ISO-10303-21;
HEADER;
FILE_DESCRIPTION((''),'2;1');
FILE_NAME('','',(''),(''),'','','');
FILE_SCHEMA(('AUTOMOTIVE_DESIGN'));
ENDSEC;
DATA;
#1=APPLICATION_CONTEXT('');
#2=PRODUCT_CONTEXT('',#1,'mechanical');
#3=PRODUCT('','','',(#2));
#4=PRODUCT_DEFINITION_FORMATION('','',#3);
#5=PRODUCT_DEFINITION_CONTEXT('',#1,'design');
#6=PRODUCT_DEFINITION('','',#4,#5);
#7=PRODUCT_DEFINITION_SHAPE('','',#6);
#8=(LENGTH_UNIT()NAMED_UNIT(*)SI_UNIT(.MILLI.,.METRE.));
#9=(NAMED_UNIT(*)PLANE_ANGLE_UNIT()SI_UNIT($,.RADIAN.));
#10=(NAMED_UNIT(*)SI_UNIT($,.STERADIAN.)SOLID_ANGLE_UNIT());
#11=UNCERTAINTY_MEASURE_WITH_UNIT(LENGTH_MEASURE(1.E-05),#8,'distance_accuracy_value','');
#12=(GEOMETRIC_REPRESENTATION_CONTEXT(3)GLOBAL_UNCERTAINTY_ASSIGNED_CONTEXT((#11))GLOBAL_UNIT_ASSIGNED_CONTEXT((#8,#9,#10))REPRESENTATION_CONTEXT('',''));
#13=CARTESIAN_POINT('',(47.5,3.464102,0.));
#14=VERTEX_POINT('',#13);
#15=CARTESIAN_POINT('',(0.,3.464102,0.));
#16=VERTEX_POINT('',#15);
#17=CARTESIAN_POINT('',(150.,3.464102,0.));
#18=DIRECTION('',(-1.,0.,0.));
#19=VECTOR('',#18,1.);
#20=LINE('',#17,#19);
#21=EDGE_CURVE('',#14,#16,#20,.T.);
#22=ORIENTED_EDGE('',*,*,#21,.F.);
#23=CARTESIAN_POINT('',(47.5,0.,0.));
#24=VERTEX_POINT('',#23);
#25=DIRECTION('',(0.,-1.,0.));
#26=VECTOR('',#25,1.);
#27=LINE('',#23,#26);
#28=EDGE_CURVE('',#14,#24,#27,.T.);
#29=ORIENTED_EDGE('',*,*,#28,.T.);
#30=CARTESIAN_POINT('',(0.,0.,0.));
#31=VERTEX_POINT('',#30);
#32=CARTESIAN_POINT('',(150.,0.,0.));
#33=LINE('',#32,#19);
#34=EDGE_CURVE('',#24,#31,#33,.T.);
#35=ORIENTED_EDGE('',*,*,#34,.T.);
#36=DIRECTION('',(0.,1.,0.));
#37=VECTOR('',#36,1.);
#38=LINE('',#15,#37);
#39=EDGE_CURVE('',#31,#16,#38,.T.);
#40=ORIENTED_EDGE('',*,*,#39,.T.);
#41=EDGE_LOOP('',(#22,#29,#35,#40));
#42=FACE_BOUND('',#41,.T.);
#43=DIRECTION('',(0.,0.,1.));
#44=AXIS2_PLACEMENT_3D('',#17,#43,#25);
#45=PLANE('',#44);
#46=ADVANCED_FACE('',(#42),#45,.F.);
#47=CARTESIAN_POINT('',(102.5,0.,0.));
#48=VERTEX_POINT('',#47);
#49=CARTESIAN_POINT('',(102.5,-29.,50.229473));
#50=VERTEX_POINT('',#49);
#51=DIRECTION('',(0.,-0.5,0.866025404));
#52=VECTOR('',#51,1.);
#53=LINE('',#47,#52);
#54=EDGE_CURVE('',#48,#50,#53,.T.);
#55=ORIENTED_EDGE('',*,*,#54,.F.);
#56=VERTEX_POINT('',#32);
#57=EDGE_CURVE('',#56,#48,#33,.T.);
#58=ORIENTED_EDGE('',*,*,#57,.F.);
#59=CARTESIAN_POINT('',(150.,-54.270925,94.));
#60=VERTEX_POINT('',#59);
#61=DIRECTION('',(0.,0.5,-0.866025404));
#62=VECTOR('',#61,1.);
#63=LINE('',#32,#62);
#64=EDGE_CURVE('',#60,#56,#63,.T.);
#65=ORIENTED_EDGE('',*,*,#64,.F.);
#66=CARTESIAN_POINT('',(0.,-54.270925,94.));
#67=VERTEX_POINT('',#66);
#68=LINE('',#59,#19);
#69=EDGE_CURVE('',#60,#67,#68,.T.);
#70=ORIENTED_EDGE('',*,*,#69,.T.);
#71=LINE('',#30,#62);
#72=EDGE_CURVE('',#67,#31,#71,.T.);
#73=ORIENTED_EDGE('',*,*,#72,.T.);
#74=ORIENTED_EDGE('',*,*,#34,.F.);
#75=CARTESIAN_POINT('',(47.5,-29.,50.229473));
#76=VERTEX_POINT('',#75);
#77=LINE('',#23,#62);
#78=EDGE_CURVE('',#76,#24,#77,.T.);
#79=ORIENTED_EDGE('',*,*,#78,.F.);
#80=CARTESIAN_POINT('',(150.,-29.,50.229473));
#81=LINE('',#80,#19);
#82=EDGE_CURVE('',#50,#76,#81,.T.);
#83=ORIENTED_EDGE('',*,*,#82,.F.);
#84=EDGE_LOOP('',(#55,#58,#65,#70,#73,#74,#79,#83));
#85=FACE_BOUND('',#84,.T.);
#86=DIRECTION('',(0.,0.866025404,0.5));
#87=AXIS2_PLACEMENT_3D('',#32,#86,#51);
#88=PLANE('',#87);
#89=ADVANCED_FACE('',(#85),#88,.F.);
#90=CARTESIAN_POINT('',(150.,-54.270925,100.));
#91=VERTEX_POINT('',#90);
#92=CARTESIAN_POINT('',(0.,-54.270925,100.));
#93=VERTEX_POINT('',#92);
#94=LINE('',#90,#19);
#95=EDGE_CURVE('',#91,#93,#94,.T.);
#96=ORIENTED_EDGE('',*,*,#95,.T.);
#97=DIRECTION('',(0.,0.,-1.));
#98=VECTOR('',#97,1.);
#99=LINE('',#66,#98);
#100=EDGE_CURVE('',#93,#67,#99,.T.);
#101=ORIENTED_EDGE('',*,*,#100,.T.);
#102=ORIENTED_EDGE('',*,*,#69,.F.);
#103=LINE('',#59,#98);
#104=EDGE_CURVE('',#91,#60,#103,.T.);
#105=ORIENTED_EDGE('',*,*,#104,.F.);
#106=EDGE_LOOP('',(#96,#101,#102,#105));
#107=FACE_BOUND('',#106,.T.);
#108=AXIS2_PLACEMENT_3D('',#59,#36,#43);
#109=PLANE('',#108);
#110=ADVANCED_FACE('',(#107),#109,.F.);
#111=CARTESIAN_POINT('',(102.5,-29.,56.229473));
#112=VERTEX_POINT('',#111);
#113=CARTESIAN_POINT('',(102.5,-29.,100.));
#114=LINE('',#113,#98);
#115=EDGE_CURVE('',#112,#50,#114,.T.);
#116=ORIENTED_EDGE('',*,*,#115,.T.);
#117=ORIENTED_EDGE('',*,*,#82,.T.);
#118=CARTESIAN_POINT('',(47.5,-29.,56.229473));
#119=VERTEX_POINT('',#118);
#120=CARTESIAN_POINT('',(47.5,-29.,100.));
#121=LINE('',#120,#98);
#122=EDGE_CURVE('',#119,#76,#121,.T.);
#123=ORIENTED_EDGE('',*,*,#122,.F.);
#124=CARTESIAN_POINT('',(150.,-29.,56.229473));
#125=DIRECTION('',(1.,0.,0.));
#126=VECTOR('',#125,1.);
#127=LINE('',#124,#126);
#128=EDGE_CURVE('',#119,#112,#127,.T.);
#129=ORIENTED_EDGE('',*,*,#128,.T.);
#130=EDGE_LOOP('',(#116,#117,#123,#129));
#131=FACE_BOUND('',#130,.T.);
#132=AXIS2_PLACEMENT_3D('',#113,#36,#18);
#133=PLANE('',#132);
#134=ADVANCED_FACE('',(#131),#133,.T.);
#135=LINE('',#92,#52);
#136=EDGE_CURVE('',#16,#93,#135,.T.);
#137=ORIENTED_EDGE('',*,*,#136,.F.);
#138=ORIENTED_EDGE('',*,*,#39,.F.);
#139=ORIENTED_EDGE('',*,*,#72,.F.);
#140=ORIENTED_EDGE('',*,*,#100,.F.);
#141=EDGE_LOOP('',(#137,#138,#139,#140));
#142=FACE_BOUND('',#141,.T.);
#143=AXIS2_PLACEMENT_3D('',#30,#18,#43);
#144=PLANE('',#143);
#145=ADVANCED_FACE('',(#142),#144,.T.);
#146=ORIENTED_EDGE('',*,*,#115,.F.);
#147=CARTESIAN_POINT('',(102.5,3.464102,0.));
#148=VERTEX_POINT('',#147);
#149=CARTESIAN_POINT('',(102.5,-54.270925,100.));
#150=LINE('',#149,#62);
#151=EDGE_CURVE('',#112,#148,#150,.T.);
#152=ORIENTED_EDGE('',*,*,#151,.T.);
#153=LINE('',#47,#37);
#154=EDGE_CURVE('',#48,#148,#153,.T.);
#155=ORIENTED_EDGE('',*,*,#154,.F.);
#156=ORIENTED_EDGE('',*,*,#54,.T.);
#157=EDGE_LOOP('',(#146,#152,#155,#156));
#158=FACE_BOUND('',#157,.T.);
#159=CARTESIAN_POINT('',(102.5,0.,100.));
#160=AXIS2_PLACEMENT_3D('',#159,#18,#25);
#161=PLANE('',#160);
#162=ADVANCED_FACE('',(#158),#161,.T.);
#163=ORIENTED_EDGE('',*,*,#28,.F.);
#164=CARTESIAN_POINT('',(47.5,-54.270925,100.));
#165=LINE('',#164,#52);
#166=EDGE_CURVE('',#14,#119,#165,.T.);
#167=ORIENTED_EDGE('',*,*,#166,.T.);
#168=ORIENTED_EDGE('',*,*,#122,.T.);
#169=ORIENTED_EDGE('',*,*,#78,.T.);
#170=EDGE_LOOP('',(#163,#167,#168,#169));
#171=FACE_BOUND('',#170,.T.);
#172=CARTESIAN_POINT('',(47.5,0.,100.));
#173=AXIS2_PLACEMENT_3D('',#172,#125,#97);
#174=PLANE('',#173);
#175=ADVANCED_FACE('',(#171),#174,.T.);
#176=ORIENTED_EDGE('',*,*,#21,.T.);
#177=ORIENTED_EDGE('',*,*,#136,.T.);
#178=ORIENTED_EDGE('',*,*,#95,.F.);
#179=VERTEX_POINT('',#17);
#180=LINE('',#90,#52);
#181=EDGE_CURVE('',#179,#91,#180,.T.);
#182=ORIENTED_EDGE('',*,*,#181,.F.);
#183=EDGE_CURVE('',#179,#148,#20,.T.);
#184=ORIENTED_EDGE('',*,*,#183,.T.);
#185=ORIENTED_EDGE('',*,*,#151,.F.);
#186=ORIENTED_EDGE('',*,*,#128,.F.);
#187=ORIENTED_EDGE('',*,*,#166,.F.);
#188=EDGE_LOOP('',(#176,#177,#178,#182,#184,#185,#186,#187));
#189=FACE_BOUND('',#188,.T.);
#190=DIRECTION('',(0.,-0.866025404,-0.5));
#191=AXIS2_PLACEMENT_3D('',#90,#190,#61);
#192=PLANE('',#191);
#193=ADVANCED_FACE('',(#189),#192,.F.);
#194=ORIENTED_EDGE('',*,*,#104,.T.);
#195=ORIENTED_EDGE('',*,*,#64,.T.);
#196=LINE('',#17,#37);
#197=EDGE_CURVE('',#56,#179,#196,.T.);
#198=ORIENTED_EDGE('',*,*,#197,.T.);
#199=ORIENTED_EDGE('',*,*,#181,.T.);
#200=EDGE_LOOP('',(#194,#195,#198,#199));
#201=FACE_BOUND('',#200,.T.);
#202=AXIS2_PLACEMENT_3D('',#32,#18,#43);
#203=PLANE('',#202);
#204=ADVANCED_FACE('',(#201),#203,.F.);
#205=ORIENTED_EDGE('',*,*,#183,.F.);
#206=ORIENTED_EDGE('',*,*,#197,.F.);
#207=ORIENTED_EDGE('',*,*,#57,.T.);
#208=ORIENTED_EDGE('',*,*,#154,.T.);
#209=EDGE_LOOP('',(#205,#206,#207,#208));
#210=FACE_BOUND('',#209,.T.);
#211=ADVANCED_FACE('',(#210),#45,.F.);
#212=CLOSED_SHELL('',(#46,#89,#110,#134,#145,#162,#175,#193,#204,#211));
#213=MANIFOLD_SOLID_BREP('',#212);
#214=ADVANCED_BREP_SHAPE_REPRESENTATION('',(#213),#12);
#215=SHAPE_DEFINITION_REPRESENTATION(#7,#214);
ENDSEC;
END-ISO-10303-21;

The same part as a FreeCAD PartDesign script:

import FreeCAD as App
import Part
import Sketcher

V = App.Vector
Q = App.Units.Quantity


def add_polygon(sketch, points):
    """Adds a closed chain of lines whose ends are joined by coincident constraints."""
    first, n = sketch.GeometryCount, len(points)
    for a, b in zip(points, points[1:] + points[:1]):
        sketch.addGeometry(Part.LineSegment(App.Vector(*a, 0), App.Vector(*b, 0)), False)
    for i in range(n):
        sketch.addConstraint(Sketcher.Constraint("Coincident", first + i, 2, first + (i + 1) % n, 1))

doc = App.newDocument("Part")
body = doc.addObject("PartDesign::Body", "Body")

# Sketch on YZ plane
sketch1 = doc.addObject("Sketcher::SketchObject", "Sketch")
body.addObject(sketch1)
sketch1.AttachmentSupport = (doc.YZ_Plane, [""])
sketch1.MapMode = "FlatFace"
add_polygon(sketch1, [(-54.3, 94), (0, 0), (3.5, 0), (-54.3, 100)])  # lines 0-3
sketch1.addConstraint([
    Sketcher.Constraint("Horizontal", 1),
    Sketcher.Constraint("Vertical", 3),
    Sketcher.Constraint("Coincident", 0, 2, -1, 1),
    Sketcher.Constraint("Parallel", 0, 2),
    Sketcher.Constraint("DistanceY", 3, 2, 3, 1, 6.0),
    Sketcher.Constraint("Angle", 0, Q("-60 deg")),
    Sketcher.Constraint("DistanceY", -1, 1, 2, 2, 100.0),
])
pad1 = doc.addObject("PartDesign::Pad", "Pad")
body.addObject(pad1)
pad1.Profile = sketch1
pad1.Length = 150

# Sketch on XY plane
sketch2 = doc.addObject("Sketcher::SketchObject", "Sketch001")
body.addObject(sketch2)
sketch2.AttachmentSupport = (doc.XY_Plane, [""])
sketch2.MapMode = "FlatFace"
add_polygon(sketch2, [(102, -29), (102, 3), (48, 3), (48, -29)])  # lines 0-3
sketch2.addConstraint([
    Sketcher.Constraint("Vertical", 0),
    Sketcher.Constraint("Horizontal", 1),
    Sketcher.Constraint("Vertical", 2),
    Sketcher.Constraint("Horizontal", 3),
    Sketcher.Constraint("DistanceX", 1, 2, 1, 1, 55.0),
    Sketcher.Constraint("DistanceY", 2, 2, -1, 1, 29.0),
    Sketcher.Constraint("DistanceX", -1, 1, 0, 2, 102.5),
    Sketcher.Constraint("DistanceY", 0, 1, 0, 2, 32.464102),
])
pocket1 = doc.addObject("PartDesign::Pocket", "Pocket")
body.addObject(pocket1)
pocket1.Profile = sketch2
pocket1.Type = "ThroughAll"
pocket1.Reversed = True

doc.recompute()
